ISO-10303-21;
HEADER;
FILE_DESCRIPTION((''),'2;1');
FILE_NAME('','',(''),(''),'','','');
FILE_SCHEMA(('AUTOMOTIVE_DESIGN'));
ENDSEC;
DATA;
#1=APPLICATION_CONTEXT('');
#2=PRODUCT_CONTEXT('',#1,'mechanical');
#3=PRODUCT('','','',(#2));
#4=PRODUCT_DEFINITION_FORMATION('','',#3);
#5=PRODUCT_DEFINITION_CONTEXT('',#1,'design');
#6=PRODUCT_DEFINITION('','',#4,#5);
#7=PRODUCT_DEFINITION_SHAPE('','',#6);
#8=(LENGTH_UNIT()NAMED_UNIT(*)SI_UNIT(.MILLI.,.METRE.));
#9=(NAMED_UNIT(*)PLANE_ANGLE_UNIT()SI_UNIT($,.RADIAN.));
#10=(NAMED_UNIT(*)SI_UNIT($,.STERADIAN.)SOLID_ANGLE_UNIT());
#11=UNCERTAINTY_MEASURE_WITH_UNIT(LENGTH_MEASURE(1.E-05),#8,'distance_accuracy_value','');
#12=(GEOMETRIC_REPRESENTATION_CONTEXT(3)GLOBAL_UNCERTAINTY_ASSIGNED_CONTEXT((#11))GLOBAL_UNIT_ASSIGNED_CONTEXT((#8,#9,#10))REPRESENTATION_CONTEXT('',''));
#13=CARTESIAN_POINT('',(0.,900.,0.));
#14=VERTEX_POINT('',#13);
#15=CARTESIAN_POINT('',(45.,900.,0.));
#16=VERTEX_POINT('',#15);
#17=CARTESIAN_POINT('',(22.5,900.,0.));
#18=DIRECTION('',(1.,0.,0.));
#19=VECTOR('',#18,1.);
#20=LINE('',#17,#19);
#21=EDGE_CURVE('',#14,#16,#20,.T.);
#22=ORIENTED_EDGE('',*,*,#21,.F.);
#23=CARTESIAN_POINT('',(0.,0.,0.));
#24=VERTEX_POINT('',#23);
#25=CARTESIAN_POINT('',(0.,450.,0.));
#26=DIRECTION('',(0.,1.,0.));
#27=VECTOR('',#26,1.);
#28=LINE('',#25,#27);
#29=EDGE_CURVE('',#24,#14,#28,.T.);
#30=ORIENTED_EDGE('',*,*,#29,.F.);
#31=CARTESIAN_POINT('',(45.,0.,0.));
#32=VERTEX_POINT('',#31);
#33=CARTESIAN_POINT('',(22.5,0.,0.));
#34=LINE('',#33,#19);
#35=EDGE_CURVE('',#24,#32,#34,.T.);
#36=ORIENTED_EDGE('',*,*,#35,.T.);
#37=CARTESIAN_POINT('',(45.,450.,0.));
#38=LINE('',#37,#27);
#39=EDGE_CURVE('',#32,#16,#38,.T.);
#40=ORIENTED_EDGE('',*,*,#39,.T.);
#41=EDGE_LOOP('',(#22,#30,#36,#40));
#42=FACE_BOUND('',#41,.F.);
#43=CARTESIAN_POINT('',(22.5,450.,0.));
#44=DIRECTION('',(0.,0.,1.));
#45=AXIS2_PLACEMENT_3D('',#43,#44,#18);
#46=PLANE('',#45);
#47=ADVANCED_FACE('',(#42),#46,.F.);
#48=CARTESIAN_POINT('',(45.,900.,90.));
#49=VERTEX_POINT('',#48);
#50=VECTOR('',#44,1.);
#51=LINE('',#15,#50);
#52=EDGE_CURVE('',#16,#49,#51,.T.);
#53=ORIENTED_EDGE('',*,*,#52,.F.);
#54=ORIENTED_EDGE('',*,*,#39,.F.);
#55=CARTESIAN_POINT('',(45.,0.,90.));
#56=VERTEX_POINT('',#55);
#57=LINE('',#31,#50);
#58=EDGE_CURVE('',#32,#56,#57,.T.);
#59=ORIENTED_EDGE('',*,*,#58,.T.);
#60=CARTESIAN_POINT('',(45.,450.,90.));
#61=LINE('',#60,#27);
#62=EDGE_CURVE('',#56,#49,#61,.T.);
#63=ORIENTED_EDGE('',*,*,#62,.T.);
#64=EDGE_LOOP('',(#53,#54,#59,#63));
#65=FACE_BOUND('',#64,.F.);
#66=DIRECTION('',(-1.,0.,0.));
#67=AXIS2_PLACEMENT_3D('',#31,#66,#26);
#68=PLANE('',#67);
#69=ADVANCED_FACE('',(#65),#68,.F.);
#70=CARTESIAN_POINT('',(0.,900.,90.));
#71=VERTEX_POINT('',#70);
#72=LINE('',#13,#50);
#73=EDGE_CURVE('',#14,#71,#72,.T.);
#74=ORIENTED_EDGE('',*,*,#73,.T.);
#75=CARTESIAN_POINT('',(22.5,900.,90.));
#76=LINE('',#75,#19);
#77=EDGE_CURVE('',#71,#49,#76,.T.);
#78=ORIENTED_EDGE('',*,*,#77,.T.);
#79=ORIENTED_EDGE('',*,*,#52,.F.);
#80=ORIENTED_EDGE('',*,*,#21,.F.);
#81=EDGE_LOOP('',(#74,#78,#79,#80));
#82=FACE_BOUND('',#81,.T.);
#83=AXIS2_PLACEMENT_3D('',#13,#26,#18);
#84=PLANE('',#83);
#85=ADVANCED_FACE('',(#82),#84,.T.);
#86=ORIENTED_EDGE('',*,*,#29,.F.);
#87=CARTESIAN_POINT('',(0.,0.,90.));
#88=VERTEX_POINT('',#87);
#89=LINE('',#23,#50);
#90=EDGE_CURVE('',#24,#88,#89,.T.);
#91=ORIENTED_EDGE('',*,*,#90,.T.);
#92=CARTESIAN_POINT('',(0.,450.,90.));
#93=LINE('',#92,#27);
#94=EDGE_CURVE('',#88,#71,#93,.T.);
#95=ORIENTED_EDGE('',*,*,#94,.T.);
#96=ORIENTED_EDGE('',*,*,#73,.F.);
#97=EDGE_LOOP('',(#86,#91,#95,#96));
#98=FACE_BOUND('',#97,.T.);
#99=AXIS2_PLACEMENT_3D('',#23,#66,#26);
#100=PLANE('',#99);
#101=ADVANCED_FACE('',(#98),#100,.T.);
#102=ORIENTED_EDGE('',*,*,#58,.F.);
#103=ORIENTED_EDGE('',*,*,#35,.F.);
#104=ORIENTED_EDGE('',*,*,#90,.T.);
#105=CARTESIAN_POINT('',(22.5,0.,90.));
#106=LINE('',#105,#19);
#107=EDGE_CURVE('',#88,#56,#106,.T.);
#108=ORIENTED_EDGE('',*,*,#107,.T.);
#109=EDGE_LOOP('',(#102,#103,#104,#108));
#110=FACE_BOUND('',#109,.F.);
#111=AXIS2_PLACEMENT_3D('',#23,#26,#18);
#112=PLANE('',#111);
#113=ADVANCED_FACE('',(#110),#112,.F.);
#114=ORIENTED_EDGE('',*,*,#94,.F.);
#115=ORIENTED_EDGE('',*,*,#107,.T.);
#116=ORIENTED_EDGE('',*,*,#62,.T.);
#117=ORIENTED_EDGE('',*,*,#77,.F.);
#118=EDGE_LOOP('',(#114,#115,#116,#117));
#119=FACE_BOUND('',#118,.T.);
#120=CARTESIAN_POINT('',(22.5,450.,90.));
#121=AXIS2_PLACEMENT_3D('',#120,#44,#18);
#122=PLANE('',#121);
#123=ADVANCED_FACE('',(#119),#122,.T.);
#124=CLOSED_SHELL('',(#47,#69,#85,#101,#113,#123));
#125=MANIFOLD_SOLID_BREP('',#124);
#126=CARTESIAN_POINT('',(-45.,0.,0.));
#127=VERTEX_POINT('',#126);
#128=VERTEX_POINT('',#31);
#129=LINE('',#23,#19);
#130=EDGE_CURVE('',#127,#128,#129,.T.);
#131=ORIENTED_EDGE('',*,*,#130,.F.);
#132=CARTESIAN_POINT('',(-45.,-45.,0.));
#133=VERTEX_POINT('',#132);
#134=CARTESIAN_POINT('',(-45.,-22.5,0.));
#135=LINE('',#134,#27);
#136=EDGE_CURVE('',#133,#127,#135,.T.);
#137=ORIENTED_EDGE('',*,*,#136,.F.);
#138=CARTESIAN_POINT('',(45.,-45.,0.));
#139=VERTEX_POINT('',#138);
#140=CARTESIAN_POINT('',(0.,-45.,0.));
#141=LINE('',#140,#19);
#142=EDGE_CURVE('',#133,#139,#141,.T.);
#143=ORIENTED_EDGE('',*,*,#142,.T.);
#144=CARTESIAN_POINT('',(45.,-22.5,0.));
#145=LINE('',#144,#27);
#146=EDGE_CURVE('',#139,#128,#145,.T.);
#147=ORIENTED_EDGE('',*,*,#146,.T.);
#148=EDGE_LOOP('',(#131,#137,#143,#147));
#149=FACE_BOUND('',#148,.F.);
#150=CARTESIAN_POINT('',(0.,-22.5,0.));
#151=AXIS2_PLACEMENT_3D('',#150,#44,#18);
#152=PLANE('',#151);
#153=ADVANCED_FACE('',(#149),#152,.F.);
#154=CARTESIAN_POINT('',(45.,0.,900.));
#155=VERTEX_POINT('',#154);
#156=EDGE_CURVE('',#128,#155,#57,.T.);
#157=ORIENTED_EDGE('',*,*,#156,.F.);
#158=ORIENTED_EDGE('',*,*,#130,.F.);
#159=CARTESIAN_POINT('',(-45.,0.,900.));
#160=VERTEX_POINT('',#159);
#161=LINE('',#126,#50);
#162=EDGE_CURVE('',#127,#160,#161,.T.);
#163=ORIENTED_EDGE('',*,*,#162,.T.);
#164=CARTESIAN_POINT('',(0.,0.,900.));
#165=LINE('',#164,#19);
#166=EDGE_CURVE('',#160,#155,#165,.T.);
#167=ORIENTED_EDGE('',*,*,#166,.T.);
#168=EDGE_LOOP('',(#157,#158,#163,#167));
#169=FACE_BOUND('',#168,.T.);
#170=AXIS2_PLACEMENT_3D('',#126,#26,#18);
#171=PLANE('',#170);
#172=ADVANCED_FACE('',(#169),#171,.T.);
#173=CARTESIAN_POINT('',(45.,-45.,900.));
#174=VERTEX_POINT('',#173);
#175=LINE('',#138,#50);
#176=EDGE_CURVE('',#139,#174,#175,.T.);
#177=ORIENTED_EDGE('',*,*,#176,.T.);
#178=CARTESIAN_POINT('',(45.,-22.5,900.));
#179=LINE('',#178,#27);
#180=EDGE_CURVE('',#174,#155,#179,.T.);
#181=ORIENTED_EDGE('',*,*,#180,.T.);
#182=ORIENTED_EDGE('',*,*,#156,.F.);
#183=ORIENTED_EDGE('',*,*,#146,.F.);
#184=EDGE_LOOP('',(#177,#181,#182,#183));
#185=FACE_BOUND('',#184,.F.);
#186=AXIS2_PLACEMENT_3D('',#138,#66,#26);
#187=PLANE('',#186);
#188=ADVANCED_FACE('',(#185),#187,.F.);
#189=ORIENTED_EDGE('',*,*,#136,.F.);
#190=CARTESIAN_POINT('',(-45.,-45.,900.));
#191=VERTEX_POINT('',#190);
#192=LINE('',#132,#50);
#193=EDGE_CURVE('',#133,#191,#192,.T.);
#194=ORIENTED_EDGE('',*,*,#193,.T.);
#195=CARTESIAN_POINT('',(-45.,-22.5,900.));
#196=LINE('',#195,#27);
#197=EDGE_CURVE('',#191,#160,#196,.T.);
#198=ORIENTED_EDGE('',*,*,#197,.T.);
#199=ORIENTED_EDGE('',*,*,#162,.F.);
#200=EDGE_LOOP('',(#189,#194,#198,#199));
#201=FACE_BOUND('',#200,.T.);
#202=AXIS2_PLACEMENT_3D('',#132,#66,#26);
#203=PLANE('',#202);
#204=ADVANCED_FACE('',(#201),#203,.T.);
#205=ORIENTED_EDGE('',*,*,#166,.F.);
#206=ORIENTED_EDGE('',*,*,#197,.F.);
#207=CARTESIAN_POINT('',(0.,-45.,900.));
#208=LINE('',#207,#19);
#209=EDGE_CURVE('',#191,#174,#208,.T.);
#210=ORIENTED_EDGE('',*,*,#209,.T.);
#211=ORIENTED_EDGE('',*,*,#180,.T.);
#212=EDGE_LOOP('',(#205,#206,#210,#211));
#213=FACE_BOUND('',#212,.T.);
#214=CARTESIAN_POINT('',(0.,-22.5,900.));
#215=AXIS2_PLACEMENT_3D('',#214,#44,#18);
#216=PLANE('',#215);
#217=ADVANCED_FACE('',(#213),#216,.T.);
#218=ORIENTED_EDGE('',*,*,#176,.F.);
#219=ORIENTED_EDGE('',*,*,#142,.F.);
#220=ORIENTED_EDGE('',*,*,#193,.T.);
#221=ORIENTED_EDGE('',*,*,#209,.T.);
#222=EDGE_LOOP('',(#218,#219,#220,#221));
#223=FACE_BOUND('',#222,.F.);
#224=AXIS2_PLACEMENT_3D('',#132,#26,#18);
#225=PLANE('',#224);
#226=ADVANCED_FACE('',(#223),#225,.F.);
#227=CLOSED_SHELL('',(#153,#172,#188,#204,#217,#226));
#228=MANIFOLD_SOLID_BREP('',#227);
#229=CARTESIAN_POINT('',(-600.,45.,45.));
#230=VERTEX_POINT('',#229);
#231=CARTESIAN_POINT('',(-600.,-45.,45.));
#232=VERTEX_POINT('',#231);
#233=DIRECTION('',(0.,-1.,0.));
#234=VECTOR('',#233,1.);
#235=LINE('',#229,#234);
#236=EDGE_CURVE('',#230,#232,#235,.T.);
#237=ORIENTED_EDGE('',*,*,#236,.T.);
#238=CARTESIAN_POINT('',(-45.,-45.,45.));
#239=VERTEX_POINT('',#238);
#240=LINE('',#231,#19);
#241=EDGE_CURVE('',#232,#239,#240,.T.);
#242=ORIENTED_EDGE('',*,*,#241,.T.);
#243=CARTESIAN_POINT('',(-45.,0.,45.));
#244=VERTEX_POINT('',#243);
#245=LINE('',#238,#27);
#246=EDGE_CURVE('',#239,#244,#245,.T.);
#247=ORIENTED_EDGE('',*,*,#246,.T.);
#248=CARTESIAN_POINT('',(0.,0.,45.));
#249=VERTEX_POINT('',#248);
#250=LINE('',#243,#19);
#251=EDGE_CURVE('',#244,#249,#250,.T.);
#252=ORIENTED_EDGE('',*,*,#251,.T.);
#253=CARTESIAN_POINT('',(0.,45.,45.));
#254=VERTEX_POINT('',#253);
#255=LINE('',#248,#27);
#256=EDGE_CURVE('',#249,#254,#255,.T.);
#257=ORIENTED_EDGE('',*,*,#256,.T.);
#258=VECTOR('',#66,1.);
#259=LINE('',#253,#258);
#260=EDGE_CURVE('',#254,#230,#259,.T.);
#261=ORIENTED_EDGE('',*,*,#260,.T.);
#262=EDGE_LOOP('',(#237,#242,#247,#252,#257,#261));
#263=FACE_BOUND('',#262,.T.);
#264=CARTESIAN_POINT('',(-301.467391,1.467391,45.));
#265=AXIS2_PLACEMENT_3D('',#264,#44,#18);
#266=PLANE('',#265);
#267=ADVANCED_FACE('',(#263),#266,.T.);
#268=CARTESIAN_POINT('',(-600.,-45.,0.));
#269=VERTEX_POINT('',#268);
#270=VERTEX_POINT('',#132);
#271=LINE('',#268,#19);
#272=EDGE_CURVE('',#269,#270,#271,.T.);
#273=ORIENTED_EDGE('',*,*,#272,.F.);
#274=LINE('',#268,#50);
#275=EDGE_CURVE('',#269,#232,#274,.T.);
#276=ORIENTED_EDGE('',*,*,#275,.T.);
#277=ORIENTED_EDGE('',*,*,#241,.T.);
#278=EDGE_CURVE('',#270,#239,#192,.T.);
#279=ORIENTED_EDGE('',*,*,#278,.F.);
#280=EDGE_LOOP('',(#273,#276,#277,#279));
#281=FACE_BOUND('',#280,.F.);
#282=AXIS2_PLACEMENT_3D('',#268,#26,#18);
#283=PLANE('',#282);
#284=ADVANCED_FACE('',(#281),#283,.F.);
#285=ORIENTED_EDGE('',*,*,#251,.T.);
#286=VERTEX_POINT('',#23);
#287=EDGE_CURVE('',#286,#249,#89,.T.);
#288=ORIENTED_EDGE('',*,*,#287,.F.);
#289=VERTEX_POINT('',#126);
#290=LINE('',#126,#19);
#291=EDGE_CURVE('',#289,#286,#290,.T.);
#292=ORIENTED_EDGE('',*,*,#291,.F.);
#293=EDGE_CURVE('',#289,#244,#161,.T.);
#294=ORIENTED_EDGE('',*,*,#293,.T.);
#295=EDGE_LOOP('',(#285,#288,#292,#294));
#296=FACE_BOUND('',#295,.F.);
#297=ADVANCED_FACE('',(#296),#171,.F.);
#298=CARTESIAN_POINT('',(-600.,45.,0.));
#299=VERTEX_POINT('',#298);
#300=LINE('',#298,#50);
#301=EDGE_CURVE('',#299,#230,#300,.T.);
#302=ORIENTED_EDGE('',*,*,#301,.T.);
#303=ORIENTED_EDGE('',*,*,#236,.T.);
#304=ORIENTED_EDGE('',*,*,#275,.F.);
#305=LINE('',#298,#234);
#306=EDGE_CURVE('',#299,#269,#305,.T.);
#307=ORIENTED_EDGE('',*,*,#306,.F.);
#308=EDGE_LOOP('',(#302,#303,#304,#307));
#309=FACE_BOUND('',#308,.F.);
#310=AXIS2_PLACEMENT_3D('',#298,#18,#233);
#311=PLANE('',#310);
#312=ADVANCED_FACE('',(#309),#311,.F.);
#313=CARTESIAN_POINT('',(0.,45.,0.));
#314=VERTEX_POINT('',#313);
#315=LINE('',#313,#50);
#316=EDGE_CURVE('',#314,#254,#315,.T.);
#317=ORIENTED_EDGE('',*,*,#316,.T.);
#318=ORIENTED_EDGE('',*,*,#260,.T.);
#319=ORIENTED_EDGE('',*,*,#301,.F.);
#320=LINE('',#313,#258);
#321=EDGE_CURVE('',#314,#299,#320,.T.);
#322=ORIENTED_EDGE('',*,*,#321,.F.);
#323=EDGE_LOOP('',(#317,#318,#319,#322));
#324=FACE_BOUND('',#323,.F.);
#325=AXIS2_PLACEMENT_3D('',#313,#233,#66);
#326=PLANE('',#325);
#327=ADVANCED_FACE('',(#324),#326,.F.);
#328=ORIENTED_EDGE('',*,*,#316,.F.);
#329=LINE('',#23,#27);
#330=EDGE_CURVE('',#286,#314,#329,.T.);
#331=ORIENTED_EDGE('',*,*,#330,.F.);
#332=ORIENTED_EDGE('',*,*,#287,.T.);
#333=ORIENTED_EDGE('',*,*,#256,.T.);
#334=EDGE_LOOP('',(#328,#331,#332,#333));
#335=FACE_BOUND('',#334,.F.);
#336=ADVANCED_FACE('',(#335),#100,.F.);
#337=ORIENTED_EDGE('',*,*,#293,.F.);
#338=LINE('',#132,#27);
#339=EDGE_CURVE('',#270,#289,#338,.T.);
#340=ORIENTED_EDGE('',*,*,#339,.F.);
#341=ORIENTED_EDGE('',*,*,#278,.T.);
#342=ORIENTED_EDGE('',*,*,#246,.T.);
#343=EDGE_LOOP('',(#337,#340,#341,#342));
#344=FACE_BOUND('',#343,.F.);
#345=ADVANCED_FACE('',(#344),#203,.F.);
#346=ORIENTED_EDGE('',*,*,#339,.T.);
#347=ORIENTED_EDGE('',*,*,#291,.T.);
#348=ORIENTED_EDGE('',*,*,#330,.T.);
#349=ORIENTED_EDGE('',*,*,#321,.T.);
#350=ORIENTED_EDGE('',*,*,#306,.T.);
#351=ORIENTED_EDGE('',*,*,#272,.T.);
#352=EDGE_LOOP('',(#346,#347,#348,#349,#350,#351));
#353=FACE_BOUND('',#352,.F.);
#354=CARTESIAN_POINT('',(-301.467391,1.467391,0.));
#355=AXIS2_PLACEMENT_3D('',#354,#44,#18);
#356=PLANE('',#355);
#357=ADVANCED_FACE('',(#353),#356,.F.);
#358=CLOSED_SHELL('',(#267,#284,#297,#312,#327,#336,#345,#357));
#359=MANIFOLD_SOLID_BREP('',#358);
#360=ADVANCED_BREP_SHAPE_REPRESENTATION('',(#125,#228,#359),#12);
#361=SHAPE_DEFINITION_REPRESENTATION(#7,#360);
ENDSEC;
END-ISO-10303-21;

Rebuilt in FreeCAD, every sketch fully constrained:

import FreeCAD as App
import Part
import Sketcher
Q = App.Units.Quantity


def add_polygon(sketch, points):
    """Adds a closed chain of lines whose ends are joined by coincident constraints."""
    first, n = sketch.GeometryCount, len(points)
    for a, b in zip(points, points[1:] + points[:1]):
        sketch.addGeometry(Part.LineSegment(App.Vector(*a, 0), App.Vector(*b, 0)), False)
    for i in range(n):
        sketch.addConstraint(Sketcher.Constraint("Coincident", first + i, 2, first + (i + 1) % n, 1))

doc = App.newDocument("Part")
body = doc.addObject("PartDesign::Body", "Body")

# Sketch on XY plane
sketch1 = body.newObject("Sketcher::SketchObject", "Sketch")
sketch1.AttachmentSupport = (doc.getObject("XY_Plane"), [""])
sketch1.MapMode = "FlatFace"
add_polygon(sketch1, [(0, 900), (0, 0), (45, 0), (45, 900)])  # lines 0-3
sketch1.addConstraint([
    Sketcher.Constraint("Vertical", 0),
    Sketcher.Constraint("Horizontal", 1),
    Sketcher.Constraint("Vertical", 2),
    Sketcher.Constraint("Horizontal", 3),
    Sketcher.Constraint("Coincident", 0, 2, -1, 1),
    Sketcher.Constraint("DistanceX", 1, 1, 1, 2, Q("45 mm")),
    Sketcher.Constraint("DistanceY", 0, 2, 0, 1, Q("900 mm")),
])
pad1 = body.newObject("PartDesign::Pad", "Pad")
pad1.Profile = sketch1
pad1.Length = 90
body2 = doc.addObject("PartDesign::Body", "Body001")

# Sketch on XY plane
sketch2 = body2.newObject("Sketcher::SketchObject", "Sketch001")
sketch2.AttachmentSupport = (doc.getObject("XY_Plane001"), [""])
sketch2.MapMode = "FlatFace"
add_polygon(sketch2, [(-45, 0), (-45, -45), (45, -45), (45, 0)])  # lines 0-3
sketch2.addConstraint([
    Sketcher.Constraint("Vertical", 0),
    Sketcher.Constraint("Horizontal", 1),
    Sketcher.Constraint("Vertical", 2),
    Sketcher.Constraint("Horizontal", 3),
    Sketcher.Constraint("Symmetric", 2, 2, 3, 2, -1, 1),
    Sketcher.Constraint("DistanceX", 1, 1, 1, 2, Q("90 mm")),
    Sketcher.Constraint("DistanceY", 0, 2, 0, 1, Q("45 mm")),
])
pad2 = body2.newObject("PartDesign::Pad", "Pad001")
pad2.Profile = sketch2
pad2.Length = 900
body3 = doc.addObject("PartDesign::Body", "Body002")

# Sketch on XY plane
sketch3 = body3.newObject("Sketcher::SketchObject", "Sketch002")
sketch3.AttachmentSupport = (doc.getObject("XY_Plane002"), [""])
sketch3.MapMode = "FlatFace"
add_polygon(sketch3, [(0, 0), (0, 45), (-600, 45), (-600, -45), (-45, -45), (-45, 0)])  # lines 0-5
sketch3.addConstraint([
    Sketcher.Constraint("Vertical", 0),
    Sketcher.Constraint("Horizontal", 1),
    Sketcher.Constraint("Vertical", 2),
    Sketcher.Constraint("Horizontal", 3),
    Sketcher.Constraint("Vertical", 4),
    Sketcher.Constraint("Horizontal", 5),
    Sketcher.Constraint("Coincident", 5, 2, -1, 1),
    Sketcher.Constraint("Equal", 5, 0),
    Sketcher.Constraint("Equal", 0, 4),
    Sketcher.Constraint("DistanceX", 1, 2, 1, 1, Q("600 mm")),
    Sketcher.Constraint("DistanceX", 3, 1, 3, 2, Q("555 mm")),
])
pad3 = body3.newObject("PartDesign::Pad", "Pad002")
pad3.Profile = sketch3
pad3.Length = 45

doc.recompute()
